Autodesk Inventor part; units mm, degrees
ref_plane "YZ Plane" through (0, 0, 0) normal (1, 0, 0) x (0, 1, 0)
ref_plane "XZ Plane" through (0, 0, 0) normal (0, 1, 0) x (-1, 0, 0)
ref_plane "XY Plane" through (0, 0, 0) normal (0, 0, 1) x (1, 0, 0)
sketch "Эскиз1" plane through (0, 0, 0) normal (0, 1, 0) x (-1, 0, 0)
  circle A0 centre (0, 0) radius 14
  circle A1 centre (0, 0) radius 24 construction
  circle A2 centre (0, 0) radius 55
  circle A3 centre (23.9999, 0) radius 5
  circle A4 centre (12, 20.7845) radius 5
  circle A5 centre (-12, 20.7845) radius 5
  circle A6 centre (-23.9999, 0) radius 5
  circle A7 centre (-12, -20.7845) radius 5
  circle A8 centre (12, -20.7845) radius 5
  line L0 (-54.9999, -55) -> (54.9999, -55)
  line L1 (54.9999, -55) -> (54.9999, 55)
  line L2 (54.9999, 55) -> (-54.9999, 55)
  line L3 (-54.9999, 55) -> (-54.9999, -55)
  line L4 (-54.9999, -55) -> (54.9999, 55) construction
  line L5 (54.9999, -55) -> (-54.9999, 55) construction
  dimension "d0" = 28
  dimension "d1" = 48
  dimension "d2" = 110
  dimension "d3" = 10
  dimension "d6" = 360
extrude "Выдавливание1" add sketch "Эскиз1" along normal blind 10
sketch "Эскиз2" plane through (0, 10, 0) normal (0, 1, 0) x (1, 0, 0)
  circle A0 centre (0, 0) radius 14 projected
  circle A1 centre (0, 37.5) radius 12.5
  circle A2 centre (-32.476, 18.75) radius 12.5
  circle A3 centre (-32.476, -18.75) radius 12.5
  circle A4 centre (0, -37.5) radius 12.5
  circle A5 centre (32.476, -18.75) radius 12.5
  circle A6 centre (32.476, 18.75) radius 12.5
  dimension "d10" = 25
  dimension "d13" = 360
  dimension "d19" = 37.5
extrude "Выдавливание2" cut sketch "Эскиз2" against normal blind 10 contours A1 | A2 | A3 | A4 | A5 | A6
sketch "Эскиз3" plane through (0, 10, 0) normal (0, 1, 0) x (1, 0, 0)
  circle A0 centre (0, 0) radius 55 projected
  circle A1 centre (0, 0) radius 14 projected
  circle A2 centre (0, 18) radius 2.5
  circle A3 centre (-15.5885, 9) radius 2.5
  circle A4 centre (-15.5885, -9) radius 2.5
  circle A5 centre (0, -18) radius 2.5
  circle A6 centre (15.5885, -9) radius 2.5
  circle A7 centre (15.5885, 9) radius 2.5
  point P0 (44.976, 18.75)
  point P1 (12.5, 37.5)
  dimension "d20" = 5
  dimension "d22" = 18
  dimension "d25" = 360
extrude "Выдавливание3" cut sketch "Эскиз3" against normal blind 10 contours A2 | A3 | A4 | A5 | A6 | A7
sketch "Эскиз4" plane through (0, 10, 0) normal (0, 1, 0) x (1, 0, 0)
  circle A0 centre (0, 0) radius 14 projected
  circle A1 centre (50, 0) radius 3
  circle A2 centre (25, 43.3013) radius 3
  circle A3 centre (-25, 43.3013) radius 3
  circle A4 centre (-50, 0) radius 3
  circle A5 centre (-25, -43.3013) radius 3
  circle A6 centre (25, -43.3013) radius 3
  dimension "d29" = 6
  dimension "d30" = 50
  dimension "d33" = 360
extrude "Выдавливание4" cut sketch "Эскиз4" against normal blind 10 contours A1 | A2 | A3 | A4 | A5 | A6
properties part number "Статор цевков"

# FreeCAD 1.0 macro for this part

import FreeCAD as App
import Part
import Sketcher


def add_polygon(sketch, points):
    """Adds a closed chain of lines whose ends are joined by coincident constraints."""
    first, n = sketch.GeometryCount, len(points)
    for a, b in zip(points, points[1:] + points[:1]):
        sketch.addGeometry(Part.LineSegment(App.Vector(*a, 0), App.Vector(*b, 0)), False)
    for i in range(n):
        sketch.addConstraint(Sketcher.Constraint("Coincident", first + i, 2, first + (i + 1) % n, 1))

doc = App.newDocument("Part")
body = doc.addObject("PartDesign::Body", "Body")

sketch1 = body.newObject("Sketcher::SketchObject", "Sketch")
sketch1.AttachmentSupport = (doc.getObject("XZ_Plane"), [""])
sketch1.MapMode = "FlatFace"
add_polygon(sketch1, [(-55, -55), (-55, 55), (55, 55), (55, -55)])
sketch1.addGeometry(Part.Circle(App.Vector(12, -21, 0), App.Vector(0, 0, 1), 5), False)
sketch1.addGeometry(Part.Circle(App.Vector(-12, -21, 0), App.Vector(0, 0, 1), 5), False)
sketch1.addGeometry(Part.Circle(App.Vector(24, 0, 0), App.Vector(0, 0, 1), 5), False)
sketch1.addGeometry(Part.Circle(App.Vector(0, 0, 0), App.Vector(0, 0, 1), 14), False)
sketch1.addGeometry(Part.Circle(App.Vector(12, 21, 0), App.Vector(0, 0, 1), 5), False)
sketch1.addGeometry(Part.Circle(App.Vector(-24, 0, 0), App.Vector(0, 0, 1), 5), False)
sketch1.addGeometry(Part.Circle(App.Vector(-12, 21, 0), App.Vector(0, 0, 1), 5), False)
sketch1.addConstraint([
    Sketcher.Constraint("Vertical", 0),
    Sketcher.Constraint("Horizontal", 1),
    Sketcher.Constraint("Vertical", 2),
    Sketcher.Constraint("Horizontal", 3),
    Sketcher.Constraint("Coincident", 7, 3, -1, 1),
    Sketcher.Constraint("Equal", 4, 5),
    Sketcher.Constraint("Equal", 5, 6),
    Sketcher.Constraint("Equal", 6, 8),
    Sketcher.Constraint("Equal", 8, 9),
    Sketcher.Constraint("Equal", 9, 10),
    Sketcher.Constraint("Symmetric", 5, 3, 8, 3, -1, 1),
    Sketcher.Constraint("Symmetric", 6, 3, 9, 3, -1, 1),
    Sketcher.Constraint("Symmetric", 4, 3, 10, 3, -1, 1),
    Sketcher.Constraint("Symmetric", 0, 2, 2, 2, -1, 1),
    Sketcher.Constraint("Symmetric", 4, 3, 5, 3, -2),
    Sketcher.Constraint("PointOnObject", 6, 3, -1),
    Sketcher.Constraint("Diameter", 4, 10.0),
    Sketcher.Constraint("Diameter", 7, 28.0),
    Sketcher.Constraint("DistanceY", 0, 1, 0, 2, 110.0),
    Sketcher.Constraint("DistanceX", 1, 1, 1, 2, 109.9998),
    Sketcher.Constraint("DistanceX", -1, 1, 4, 3, 12.0),
    Sketcher.Constraint("DistanceX", -1, 1, 6, 3, 24.0),
    Sketcher.Constraint("DistanceY", 4, 3, 8, 3, 41.569),
])
pad1 = body.newObject("PartDesign::Pad", "Pad")
pad1.Profile = sketch1
pad1.Length = 10
pad1.Reversed = True

sketch2 = body.newObject("Sketcher::SketchObject", "Sketch001")
sketch2.AttachmentSupport = (doc.getObject("XZ_Plane"), [""])
sketch2.MapMode = "FlatFace"
sketch2.AttachmentOffset = App.Placement(App.Vector(0, 0, -10), App.Rotation())
sketch2.addGeometry([
    Part.Circle(App.Vector(0, -38, 0), App.Vector(0, 0, 1), 12),
    Part.Circle(App.Vector(-32, -19, 0), App.Vector(0, 0, 1), 12),
    Part.Circle(App.Vector(-32, 19, 0), App.Vector(0, 0, 1), 12),
    Part.Circle(App.Vector(0, 38, 0), App.Vector(0, 0, 1), 12),
    Part.Circle(App.Vector(32, 19, 0), App.Vector(0, 0, 1), 12),
    Part.Circle(App.Vector(32, -19, 0), App.Vector(0, 0, 1), 12),
], False)
sketch2.addConstraint([
    Sketcher.Constraint("Equal", 0, 1),
    Sketcher.Constraint("Equal", 1, 2),
    Sketcher.Constraint("Equal", 2, 3),
    Sketcher.Constraint("Equal", 3, 4),
    Sketcher.Constraint("Equal", 4, 5),
    Sketcher.Constraint("Symmetric", 0, 3, 3, 3, -1, 1),
    Sketcher.Constraint("Symmetric", 1, 3, 4, 3, -1, 1),
    Sketcher.Constraint("Symmetric", 2, 3, 5, 3, -1, 1),
    Sketcher.Constraint("Symmetric", 2, 3, 4, 3, -2),
    Sketcher.Constraint("PointOnObject", 0, 3, -2),
    Sketcher.Constraint("Diameter", 0, 25.0),
    Sketcher.Constraint("DistanceY", 0, 3, -1, 1, 37.5),
    Sketcher.Constraint("DistanceY", 1, 3, 2, 3, 37.5),
    Sketcher.Constraint("DistanceX", 1, 3, -1, 1, 32.476),
])
pocket1 = body.newObject("PartDesign::Pocket", "Pocket")
pocket1.Profile = sketch2
pocket1.Length = 10
pocket1.Reversed = True

sketch3 = body.newObject("Sketcher::SketchObject", "Sketch002")
sketch3.AttachmentSupport = (doc.getObject("XZ_Plane"), [""])
sketch3.MapMode = "FlatFace"
sketch3.AttachmentOffset = App.Placement(App.Vector(0, 0, -10), App.Rotation())
sketch3.addGeometry([
    Part.Circle(App.Vector(0, -18, 0), App.Vector(0, 0, 1), 2.5),
    Part.Circle(App.Vector(-15.6, -9, 0), App.Vector(0, 0, 1), 2.5),
    Part.Circle(App.Vector(-15.6, 9, 0), App.Vector(0, 0, 1), 2.5),
    Part.Circle(App.Vector(0, 18, 0), App.Vector(0, 0, 1), 2.5),
    Part.Circle(App.Vector(15.6, 9, 0), App.Vector(0, 0, 1), 2.5),
    Part.Circle(App.Vector(15.6, -9, 0), App.Vector(0, 0, 1), 2.5),
], False)
sketch3.addConstraint([
    Sketcher.Constraint("Equal", 0, 1),
    Sketcher.Constraint("Equal", 1, 2),
    Sketcher.Constraint("Equal", 2, 3),
    Sketcher.Constraint("Equal", 3, 4),
    Sketcher.Constraint("Equal", 4, 5),
    Sketcher.Constraint("Symmetric", 0, 3, 3, 3, -1, 1),
    Sketcher.Constraint("Symmetric", 1, 3, 4, 3, -1, 1),
    Sketcher.Constraint("Symmetric", 2, 3, 5, 3, -1, 1),
    Sketcher.Constraint("Symmetric", 2, 3, 4, 3, -2),
    Sketcher.Constraint("PointOnObject", 0, 3, -2),
    Sketcher.Constraint("Diameter", 0, 5.0),
    Sketcher.Constraint("DistanceY", 0, 3, -1, 1, 18.0),
    Sketcher.Constraint("DistanceY", 1, 3, 2, 3, 18.0),
    Sketcher.Constraint("DistanceX", 2, 3, 4, 3, 31.177),
])
pocket2 = body.newObject("PartDesign::Pocket", "Pocket001")
pocket2.Profile = sketch3
pocket2.Length = 10
pocket2.Reversed = True

sketch4 = body.newObject("Sketcher::SketchObject", "Sketch003")
sketch4.AttachmentSupport = (doc.getObject("XZ_Plane"), [""])
sketch4.MapMode = "FlatFace"
sketch4.AttachmentOffset = App.Placement(App.Vector(0, 0, -10), App.Rotation())
sketch4.addGeometry([
    Part.Circle(App.Vector(50, 0, 0), App.Vector(0, 0, 1), 3),
    Part.Circle(App.Vector(25, -43.3, 0), App.Vector(0, 0, 1), 3),
    Part.Circle(App.Vector(-25, -43.3, 0), App.Vector(0, 0, 1), 3),
    Part.Circle(App.Vector(-50, 0, 0), App.Vector(0, 0, 1), 3),
    Part.Circle(App.Vector(-25, 43.3, 0), App.Vector(0, 0, 1), 3),
    Part.Circle(App.Vector(25, 43.3, 0), App.Vector(0, 0, 1), 3),
], False)
sketch4.addConstraint([
    Sketcher.Constraint("Equal", 0, 1),
    Sketcher.Constraint("Equal", 1, 2),
    Sketcher.Constraint("Equal", 2, 3),
    Sketcher.Constraint("Equal", 3, 4),
    Sketcher.Constraint("Equal", 4, 5),
    Sketcher.Constraint("Symmetric", 0, 3, 3, 3, -1, 1),
    Sketcher.Constraint("Symmetric", 1, 3, 4, 3, -1, 1),
    Sketcher.Constraint("Symmetric", 2, 3, 5, 3, -1, 1),
    Sketcher.Constraint("Symmetric", 1, 3, 2, 3, -2),
    Sketcher.Constraint("PointOnObject", 0, 3, -1),
    Sketcher.Constraint("Diameter", 0, 6.0),
    Sketcher.Constraint("DistanceX", -1, 1, 0, 3, 50.0),
    Sketcher.Constraint("DistanceX", 2, 3, 1, 3, 50.0),
    Sketcher.Constraint("DistanceY", 1, 3, -1, 1, 43.3013),
])
pocket3 = body.newObject("PartDesign::Pocket", "Pocket002")
pocket3.Profile = sketch4
pocket3.Length = 10
pocket3.Reversed = True

doc.recompute()
